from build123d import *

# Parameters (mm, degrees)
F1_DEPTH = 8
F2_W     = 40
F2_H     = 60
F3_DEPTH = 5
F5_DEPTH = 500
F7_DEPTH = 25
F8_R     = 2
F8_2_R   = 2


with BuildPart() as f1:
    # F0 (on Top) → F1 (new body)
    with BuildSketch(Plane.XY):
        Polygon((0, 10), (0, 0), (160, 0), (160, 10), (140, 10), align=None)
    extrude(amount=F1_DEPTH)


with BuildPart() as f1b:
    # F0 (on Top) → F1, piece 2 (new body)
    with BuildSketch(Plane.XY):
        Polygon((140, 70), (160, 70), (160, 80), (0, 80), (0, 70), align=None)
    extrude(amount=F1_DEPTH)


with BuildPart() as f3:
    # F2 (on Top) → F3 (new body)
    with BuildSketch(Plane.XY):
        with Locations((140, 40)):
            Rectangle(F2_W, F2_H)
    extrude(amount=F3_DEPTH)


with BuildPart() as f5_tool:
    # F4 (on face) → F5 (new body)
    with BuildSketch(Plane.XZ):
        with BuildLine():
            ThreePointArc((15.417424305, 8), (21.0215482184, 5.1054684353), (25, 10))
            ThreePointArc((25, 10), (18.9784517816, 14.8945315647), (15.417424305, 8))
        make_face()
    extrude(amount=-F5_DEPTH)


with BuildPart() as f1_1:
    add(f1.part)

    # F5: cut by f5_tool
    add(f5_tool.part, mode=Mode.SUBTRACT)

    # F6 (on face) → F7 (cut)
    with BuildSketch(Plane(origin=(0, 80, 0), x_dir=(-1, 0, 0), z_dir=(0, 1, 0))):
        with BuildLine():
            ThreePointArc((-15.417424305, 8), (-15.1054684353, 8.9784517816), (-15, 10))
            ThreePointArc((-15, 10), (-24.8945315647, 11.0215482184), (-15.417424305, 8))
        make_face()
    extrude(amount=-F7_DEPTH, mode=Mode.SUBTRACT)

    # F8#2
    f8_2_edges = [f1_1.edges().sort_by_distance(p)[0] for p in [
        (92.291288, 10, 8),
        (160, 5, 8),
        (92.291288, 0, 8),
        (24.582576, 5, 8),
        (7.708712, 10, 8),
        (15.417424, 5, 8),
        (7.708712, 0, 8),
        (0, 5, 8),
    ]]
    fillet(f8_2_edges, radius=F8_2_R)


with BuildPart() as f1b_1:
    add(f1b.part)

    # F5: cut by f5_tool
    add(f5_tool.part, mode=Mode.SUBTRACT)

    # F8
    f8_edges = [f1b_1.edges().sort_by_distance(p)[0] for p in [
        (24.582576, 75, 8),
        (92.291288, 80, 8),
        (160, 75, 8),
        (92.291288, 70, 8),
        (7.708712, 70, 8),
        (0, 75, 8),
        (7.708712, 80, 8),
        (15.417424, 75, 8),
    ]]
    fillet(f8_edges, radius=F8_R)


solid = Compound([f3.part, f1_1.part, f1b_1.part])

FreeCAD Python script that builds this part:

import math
import FreeCAD as App
import Part
import Sketcher
Q = App.Units.Quantity


def edges_at(feature, points):
    """Names of the edges that pass closest to the given points."""
    edges = feature.Shape.Edges
    near = lambda p: min(range(len(edges)), key=lambda i: edges[i].distToShape(Part.Vertex(*p))[0])
    return sorted({f"Edge{near(p) + 1}" for p in points})


def add_polygon(sketch, points):
    """Adds a closed chain of lines whose ends are joined by coincident constraints."""
    first, n = sketch.GeometryCount, len(points)
    for a, b in zip(points, points[1:] + points[:1]):
        sketch.addGeometry(Part.LineSegment(App.Vector(*a, 0), App.Vector(*b, 0)), False)
    for i in range(n):
        sketch.addConstraint(Sketcher.Constraint("Coincident", first + i, 2, first + (i + 1) % n, 1))

doc = App.newDocument("Part")
body = doc.addObject("PartDesign::Body", "Body")

# Sketch on XY plane
sketch1 = body.newObject("Sketcher::SketchObject", "Sketch")
sketch1.AttachmentSupport = (doc.getObject("XY_Plane"), [""])
sketch1.MapMode = "FlatFace"
add_polygon(sketch1, [(0, 10), (0, 0), (160, 0), (160, 10)])  # lines 0-3
sketch1.addConstraint(Sketcher.Constraint("Vertical", 0))
sketch1.addConstraint(Sketcher.Constraint("Horizontal", 1))
sketch1.addConstraint(Sketcher.Constraint("Vertical", 2))
sketch1.addConstraint(Sketcher.Constraint("Horizontal", 3))
sketch1.addConstraint(Sketcher.Constraint("Coincident", 0, 2, -1, 1))
sketch1.addConstraint(Sketcher.Constraint("DistanceX", 1, 1, 1, 2, Q("160 mm")))
sketch1.addConstraint(Sketcher.Constraint("DistanceY", 0, 2, 0, 1, Q("10 mm")))
pad1 = body.newObject("PartDesign::Pad", "Pad")
pad1.Profile = sketch1
pad1.Length = 8
body2 = doc.addObject("PartDesign::Body", "Body001")

# Sketch on XY plane
sketch2 = body2.newObject("Sketcher::SketchObject", "Sketch001")
sketch2.AttachmentSupport = (doc.getObject("XY_Plane001"), [""])
sketch2.MapMode = "FlatFace"
add_polygon(sketch2, [(160, 70), (160, 80), (0, 80), (0, 70)])  # lines 0-3
sketch2.addConstraint(Sketcher.Constraint("Vertical", 0))
sketch2.addConstraint(Sketcher.Constraint("Horizontal", 1))
sketch2.addConstraint(Sketcher.Constraint("Vertical", 2))
sketch2.addConstraint(Sketcher.Constraint("Horizontal", 3))
sketch2.addConstraint(Sketcher.Constraint("PointOnObject", 1, 2, -2))
sketch2.addConstraint(Sketcher.Constraint("DistanceX", 1, 2, 1, 1, Q("160 mm")))
sketch2.addConstraint(Sketcher.Constraint("DistanceY", 0, 1, 0, 2, Q("10 mm")))
sketch2.addConstraint(Sketcher.Constraint("DistanceY", -1, 1, 0, 2, Q("80 mm")))
pad2 = body2.newObject("PartDesign::Pad", "Pad001")
pad2.Profile = sketch2
pad2.Length = 8
body3 = doc.addObject("PartDesign::Body", "Body002")

# Sketch on XY plane
sketch3 = body3.newObject("Sketcher::SketchObject", "Sketch002")
sketch3.AttachmentSupport = (doc.getObject("XY_Plane002"), [""])
sketch3.MapMode = "FlatFace"
add_polygon(sketch3, [(120, 70), (120, 10), (160, 10), (160, 70)])  # lines 0-3
sketch3.addConstraint(Sketcher.Constraint("Vertical", 0))
sketch3.addConstraint(Sketcher.Constraint("Horizontal", 1))
sketch3.addConstraint(Sketcher.Constraint("Vertical", 2))
sketch3.addConstraint(Sketcher.Constraint("Horizontal", 3))
sketch3.addConstraint(Sketcher.Constraint("DistanceX", 1, 1, 1, 2, Q("40 mm")))
sketch3.addConstraint(Sketcher.Constraint("DistanceY", 0, 2, 0, 1, Q("60 mm")))
sketch3.addConstraint(Sketcher.Constraint("DistanceX", -1, 1, 0, 2, Q("120 mm")))
sketch3.addConstraint(Sketcher.Constraint("DistanceY", -1, 1, 0, 2, Q("10 mm")))
pad3 = body3.newObject("PartDesign::Pad", "Pad002")
pad3.Profile = sketch3
pad3.Length = 5
body4 = doc.addObject("PartDesign::Body", "Body003")

# Sketch on XZ plane
sketch4 = body4.newObject("Sketcher::SketchObject", "Sketch003")
sketch4.AttachmentSupport = (doc.getObject("XZ_Plane003"), [""])
sketch4.MapMode = "FlatFace"
sketch4.addGeometry(Part.ArcOfCircle(Part.Circle(App.Vector(20, 10, 0), App.Vector(0, 0, 1), 5), math.radians(-156), math.radians(0)), False)
sketch4.addGeometry(Part.ArcOfCircle(Part.Circle(App.Vector(20, 10, 0), App.Vector(0, 0, 1), 5), math.radians(0), math.radians(204)), False)
sketch4.addConstraint(Sketcher.Constraint("Tangent", 0, 1, 1, 2))
sketch4.addConstraint(Sketcher.Constraint("Coincident", 1, 1, 0, 2))
sketch4.addConstraint(Sketcher.Constraint("Horizontal", 0, 3, 1, 1))
sketch4.addConstraint(Sketcher.Constraint("Radius", 0, Q("5 mm")))
sketch4.addConstraint(Sketcher.Constraint("DistanceX", -1, 1, 0, 3, Q("20 mm")))
sketch4.addConstraint(Sketcher.Constraint("DistanceY", -1, 1, 0, 3, Q("10 mm")))
sketch4.addConstraint(Sketcher.Constraint("DistanceY", -1, 1, 0, 1, Q("8 mm")))
pad4 = body4.newObject("PartDesign::Pad", "Pad003")
pad4.Profile = sketch4
pad4.Length = 500
pad4.Reversed = True
doc.recompute()

body5 = doc.addObject("PartDesign::Body", "Body004")
body5.BaseFeature = body4
boolean = body.newObject("PartDesign::Boolean", "Boolean")
boolean.Type = "Cut"
boolean.addObjects([body5])
doc.recompute()

# Sketch on XZ plane
sketch5 = body.newObject("Sketcher::SketchObject", "Sketch004")
sketch5.AttachmentSupport = (doc.getObject("XZ_Plane"), [""])
sketch5.MapMode = "FlatFace"
sketch5.AttachmentOffset = App.Placement(App.Vector(0, 0, -80), App.Rotation())
sketch5.addGeometry(Part.ArcOfCircle(Part.Circle(App.Vector(20, 10, 0), App.Vector(0, 0, 1), 5), math.radians(180), math.radians(204)), False)
sketch5.addGeometry(Part.ArcOfCircle(Part.Circle(App.Vector(20, 10, 0), App.Vector(0, 0, 1), 5), math.radians(-156), math.radians(180)), False)
sketch5.addConstraint(Sketcher.Constraint("Tangent", 0, 1, 1, 2))
sketch5.addConstraint(Sketcher.Constraint("Coincident", 1, 1, 0, 2))
sketch5.addConstraint(Sketcher.Constraint("Horizontal", 1, 3, 0, 1))
sketch5.addConstraint(Sketcher.Constraint("Radius", 0, Q("5 mm")))
sketch5.addConstraint(Sketcher.Constraint("DistanceX", -1, 1, 0, 3, Q("20 mm")))
sketch5.addConstraint(Sketcher.Constraint("DistanceY", -1, 1, 0, 3, Q("10 mm")))
sketch5.addConstraint(Sketcher.Constraint("DistanceY", -1, 1, 1, 1, Q("8 mm")))
pocket1 = body.newObject("PartDesign::Pocket", "Pocket")
pocket1.Profile = sketch5
pocket1.Length = 25
pocket1.Reversed = True
doc.recompute()

fillet = body.newObject("PartDesign::Fillet", "Fillet")
fillet.Base = (pocket1, edges_at(pocket1, [
    (92.291, 10, 8),
    (160, 5, 8),
    (92.291, 0, 8),
    (24.583, 5, 8),
    (7.709, 10, 8),
    (15.417, 5, 8),
    (7.709, 0, 8),
    (0, 5, 8),
]))
fillet.Radius = 2
doc.recompute()

boolean2 = body2.newObject("PartDesign::Boolean", "Boolean001")
boolean2.Type = "Cut"
boolean2.addObjects([body4])
doc.recompute()

fillet2 = body2.newObject("PartDesign::Fillet", "Fillet001")
fillet2.Base = (boolean2, edges_at(boolean2, [
    (24.583, 75, 8),
    (92.291, 80, 8),
    (160, 75, 8),
    (92.291, 70, 8),
    (7.709, 70, 8),
    (0, 75, 8),
    (7.709, 80, 8),
    (15.417, 75, 8),
]))
fillet2.Radius = 2

doc.recompute()
